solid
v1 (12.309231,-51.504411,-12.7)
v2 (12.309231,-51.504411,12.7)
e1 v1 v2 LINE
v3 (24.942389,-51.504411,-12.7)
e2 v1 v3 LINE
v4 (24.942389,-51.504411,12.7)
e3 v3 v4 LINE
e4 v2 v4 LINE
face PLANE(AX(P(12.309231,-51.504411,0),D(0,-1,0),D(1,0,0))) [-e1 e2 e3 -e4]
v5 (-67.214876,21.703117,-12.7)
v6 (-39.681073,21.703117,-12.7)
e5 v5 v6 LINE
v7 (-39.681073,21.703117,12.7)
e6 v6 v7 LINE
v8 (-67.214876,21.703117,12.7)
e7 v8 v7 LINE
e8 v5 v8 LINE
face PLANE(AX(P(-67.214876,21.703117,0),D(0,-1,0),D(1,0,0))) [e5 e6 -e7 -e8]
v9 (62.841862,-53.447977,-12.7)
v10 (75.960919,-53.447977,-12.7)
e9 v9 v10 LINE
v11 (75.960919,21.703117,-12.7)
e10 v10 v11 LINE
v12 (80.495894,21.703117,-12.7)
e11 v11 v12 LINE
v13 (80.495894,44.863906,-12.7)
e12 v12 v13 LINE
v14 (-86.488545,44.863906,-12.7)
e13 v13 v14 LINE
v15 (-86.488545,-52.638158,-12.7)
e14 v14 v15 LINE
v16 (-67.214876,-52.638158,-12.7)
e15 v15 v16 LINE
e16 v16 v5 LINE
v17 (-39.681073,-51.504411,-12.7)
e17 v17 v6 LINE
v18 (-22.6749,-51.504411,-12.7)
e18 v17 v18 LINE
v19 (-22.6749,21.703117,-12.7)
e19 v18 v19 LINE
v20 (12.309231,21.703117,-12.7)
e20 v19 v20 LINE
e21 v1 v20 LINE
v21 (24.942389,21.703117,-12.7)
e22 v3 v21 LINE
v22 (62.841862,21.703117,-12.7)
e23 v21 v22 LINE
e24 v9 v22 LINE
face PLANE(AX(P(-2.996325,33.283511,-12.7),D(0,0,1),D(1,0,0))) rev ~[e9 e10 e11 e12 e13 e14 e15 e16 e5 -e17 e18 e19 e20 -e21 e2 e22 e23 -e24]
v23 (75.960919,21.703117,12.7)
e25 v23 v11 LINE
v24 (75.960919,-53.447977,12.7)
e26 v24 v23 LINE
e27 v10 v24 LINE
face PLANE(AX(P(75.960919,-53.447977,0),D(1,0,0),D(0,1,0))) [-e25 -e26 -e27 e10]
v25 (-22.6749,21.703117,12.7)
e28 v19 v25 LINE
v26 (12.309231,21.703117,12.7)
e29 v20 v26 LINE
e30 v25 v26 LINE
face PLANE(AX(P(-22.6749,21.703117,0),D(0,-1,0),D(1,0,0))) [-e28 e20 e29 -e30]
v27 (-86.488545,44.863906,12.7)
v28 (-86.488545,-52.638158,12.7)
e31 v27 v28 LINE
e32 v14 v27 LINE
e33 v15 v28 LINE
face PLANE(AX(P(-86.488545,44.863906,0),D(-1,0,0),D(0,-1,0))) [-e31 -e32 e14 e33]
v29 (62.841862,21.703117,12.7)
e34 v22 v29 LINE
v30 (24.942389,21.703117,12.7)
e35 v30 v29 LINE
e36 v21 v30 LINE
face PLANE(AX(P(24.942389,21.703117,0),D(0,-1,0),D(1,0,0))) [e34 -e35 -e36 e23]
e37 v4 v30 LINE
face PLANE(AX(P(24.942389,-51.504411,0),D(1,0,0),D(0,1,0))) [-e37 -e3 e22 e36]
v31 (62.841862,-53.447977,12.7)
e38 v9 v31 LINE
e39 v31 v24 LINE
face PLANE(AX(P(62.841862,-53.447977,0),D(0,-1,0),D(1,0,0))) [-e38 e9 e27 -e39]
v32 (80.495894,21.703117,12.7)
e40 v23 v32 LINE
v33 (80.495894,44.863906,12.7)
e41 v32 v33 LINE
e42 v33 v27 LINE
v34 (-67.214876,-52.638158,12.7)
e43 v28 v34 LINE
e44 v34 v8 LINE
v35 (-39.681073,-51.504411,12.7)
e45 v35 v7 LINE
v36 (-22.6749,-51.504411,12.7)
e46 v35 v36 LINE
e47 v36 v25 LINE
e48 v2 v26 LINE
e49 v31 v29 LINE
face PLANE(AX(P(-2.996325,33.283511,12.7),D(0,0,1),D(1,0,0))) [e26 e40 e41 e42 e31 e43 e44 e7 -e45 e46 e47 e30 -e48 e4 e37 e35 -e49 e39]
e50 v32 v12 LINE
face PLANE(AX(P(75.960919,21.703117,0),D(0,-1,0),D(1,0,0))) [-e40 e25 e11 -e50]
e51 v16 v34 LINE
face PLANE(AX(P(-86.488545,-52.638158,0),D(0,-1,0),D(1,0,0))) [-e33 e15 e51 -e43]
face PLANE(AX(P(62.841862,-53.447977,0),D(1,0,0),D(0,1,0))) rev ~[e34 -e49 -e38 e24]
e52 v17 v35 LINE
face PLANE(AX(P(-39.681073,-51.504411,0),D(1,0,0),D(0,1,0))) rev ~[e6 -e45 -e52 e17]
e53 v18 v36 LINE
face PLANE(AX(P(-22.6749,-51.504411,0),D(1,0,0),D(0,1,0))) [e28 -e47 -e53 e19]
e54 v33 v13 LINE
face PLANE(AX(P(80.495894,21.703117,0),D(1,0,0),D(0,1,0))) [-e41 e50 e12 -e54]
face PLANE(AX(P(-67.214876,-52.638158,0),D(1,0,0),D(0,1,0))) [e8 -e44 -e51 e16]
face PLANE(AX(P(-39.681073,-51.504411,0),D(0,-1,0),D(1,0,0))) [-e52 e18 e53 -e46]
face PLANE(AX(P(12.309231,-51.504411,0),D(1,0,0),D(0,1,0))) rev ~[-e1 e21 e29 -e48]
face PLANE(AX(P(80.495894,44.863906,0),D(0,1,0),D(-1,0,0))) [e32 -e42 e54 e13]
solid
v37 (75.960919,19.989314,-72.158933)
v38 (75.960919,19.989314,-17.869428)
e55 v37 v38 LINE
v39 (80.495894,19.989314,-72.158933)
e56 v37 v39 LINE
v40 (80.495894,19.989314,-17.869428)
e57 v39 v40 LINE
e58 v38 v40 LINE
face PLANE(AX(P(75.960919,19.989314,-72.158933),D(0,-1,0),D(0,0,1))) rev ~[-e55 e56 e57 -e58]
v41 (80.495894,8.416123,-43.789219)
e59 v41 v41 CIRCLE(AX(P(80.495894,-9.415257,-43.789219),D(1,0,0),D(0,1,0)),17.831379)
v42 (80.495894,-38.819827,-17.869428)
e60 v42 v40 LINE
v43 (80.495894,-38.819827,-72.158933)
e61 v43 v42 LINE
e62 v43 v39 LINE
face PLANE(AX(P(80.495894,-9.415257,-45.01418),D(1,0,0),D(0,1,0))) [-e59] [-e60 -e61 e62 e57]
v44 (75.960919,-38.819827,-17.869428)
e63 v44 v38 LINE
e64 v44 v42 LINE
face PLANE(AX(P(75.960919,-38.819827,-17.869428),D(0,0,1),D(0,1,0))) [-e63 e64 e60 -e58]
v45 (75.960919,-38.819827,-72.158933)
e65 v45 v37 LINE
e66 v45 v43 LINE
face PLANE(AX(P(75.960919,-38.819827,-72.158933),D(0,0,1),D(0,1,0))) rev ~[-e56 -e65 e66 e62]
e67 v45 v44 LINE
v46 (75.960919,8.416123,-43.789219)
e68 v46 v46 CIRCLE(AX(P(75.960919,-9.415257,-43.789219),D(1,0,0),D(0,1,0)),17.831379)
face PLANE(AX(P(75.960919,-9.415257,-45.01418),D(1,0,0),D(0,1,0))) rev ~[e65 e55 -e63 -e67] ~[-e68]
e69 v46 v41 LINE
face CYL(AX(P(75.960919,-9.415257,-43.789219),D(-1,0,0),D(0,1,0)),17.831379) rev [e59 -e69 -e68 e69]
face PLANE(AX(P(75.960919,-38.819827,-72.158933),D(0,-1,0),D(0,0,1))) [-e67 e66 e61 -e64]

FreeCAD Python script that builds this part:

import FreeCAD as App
import Part
import Sketcher
from FreeCAD import Vector
Q = App.Units.Quantity

doc = App.newDocument("Part")
body = doc.addObject("PartDesign::Body", "Body")

# Sketch on XY plane
sketch1 = doc.addObject("Sketcher::SketchObject", "Sketch")
body.addObject(sketch1)
sketch1.AttachmentSupport = (doc.XY_Plane, [""])
sketch1.MapMode = "FlatFace"
sketch1.addGeometry(Part.LineSegment(Vector(80.5, 44.9, 0), Vector(-86.5, 44.9, 0)), False)
sketch1.addGeometry(Part.LineSegment(Vector(-86.5, 44.9, 0), Vector(-86.5, -52.6, 0)), False)
sketch1.addGeometry(Part.LineSegment(Vector(-86.5, -52.6, 0), Vector(-67.2, -52.6, 0)), False)
sketch1.addGeometry(Part.LineSegment(Vector(-67.2, -52.6, 0), Vector(-67.2, 21.7, 0)), False)
sketch1.addGeometry(Part.LineSegment(Vector(-67.2, 21.7, 0), Vector(-39.7, 21.7, 0)), False)
sketch1.addGeometry(Part.LineSegment(Vector(-39.7, 21.7, 0), Vector(-39.7, -51.5, 0)), False)
sketch1.addGeometry(Part.LineSegment(Vector(-39.7, -51.5, 0), Vector(-22.7, -51.5, 0)), False)
sketch1.addGeometry(Part.LineSegment(Vector(-22.7, -51.5, 0), Vector(-22.7, 21.7, 0)), False)
sketch1.addGeometry(Part.LineSegment(Vector(-22.7, 21.7, 0), Vector(12.3, 21.7, 0)), False)
sketch1.addGeometry(Part.LineSegment(Vector(12.3, 21.7, 0), Vector(12.3, -51.5, 0)), False)
sketch1.addGeometry(Part.LineSegment(Vector(12.3, -51.5, 0), Vector(24.9, -51.5, 0)), False)
sketch1.addGeometry(Part.LineSegment(Vector(24.9, -51.5, 0), Vector(24.9, 21.7, 0)), False)
sketch1.addGeometry(Part.LineSegment(Vector(24.9, 21.7, 0), Vector(62.8, 21.7, 0)), False)
sketch1.addGeometry(Part.LineSegment(Vector(62.8, 21.7, 0), Vector(62.8, -53.4, 0)), False)
sketch1.addGeometry(Part.LineSegment(Vector(62.8, -53.4, 0), Vector(76, -53.4, 0)), False)
sketch1.addGeometry(Part.LineSegment(Vector(76, -53.4, 0), Vector(76, 21.7, 0)), False)
sketch1.addGeometry(Part.LineSegment(Vector(76, 21.7, 0), Vector(80.5, 21.7, 0)), False)
sketch1.addGeometry(Part.LineSegment(Vector(80.5, 21.7, 0), Vector(80.5, 44.9, 0)), False)
sketch1.addConstraint(Sketcher.Constraint("Coincident", 0, 2, 1, 1))
sketch1.addConstraint(Sketcher.Constraint("Coincident", 1, 2, 2, 1))
sketch1.addConstraint(Sketcher.Constraint("Coincident", 2, 2, 3, 1))
sketch1.addConstraint(Sketcher.Constraint("Coincident", 3, 2, 4, 1))
sketch1.addConstraint(Sketcher.Constraint("Coincident", 4, 2, 5, 1))
sketch1.addConstraint(Sketcher.Constraint("Coincident", 5, 2, 6, 1))
sketch1.addConstraint(Sketcher.Constraint("Coincident", 6, 2, 7, 1))
sketch1.addConstraint(Sketcher.Constraint("Coincident", 7, 2, 8, 1))
sketch1.addConstraint(Sketcher.Constraint("Coincident", 8, 2, 9, 1))
sketch1.addConstraint(Sketcher.Constraint("Coincident", 9, 2, 10, 1))
sketch1.addConstraint(Sketcher.Constraint("Coincident", 10, 2, 11, 1))
sketch1.addConstraint(Sketcher.Constraint("Coincident", 11, 2, 12, 1))
sketch1.addConstraint(Sketcher.Constraint("Coincident", 12, 2, 13, 1))
sketch1.addConstraint(Sketcher.Constraint("Coincident", 13, 2, 14, 1))
sketch1.addConstraint(Sketcher.Constraint("Coincident", 14, 2, 15, 1))
sketch1.addConstraint(Sketcher.Constraint("Coincident", 15, 2, 16, 1))
sketch1.addConstraint(Sketcher.Constraint("Coincident", 16, 2, 17, 1))
sketch1.addConstraint(Sketcher.Constraint("Coincident", 17, 2, 0, 1))
sketch1.addConstraint(Sketcher.Constraint("Horizontal", 0))
sketch1.addConstraint(Sketcher.Constraint("Vertical", 1))
sketch1.addConstraint(Sketcher.Constraint("Horizontal", 2))
sketch1.addConstraint(Sketcher.Constraint("Vertical", 3))
sketch1.addConstraint(Sketcher.Constraint("Horizontal", 4))
sketch1.addConstraint(Sketcher.Constraint("Vertical", 5))
sketch1.addConstraint(Sketcher.Constraint("Horizontal", 6))
sketch1.addConstraint(Sketcher.Constraint("Vertical", 7))
sketch1.addConstraint(Sketcher.Constraint("Horizontal", 8))
sketch1.addConstraint(Sketcher.Constraint("Vertical", 9))
sketch1.addConstraint(Sketcher.Constraint("Horizontal", 10))
sketch1.addConstraint(Sketcher.Constraint("Vertical", 11))
sketch1.addConstraint(Sketcher.Constraint("Horizontal", 12))
sketch1.addConstraint(Sketcher.Constraint("Vertical", 13))
sketch1.addConstraint(Sketcher.Constraint("Horizontal", 14))
sketch1.addConstraint(Sketcher.Constraint("Vertical", 15))
sketch1.addConstraint(Sketcher.Constraint("Horizontal", 16))
sketch1.addConstraint(Sketcher.Constraint("Vertical", 17))
sketch1.addConstraint(Sketcher.Constraint("Horizontal", 4, 2, 7, 2))
sketch1.addConstraint(Sketcher.Constraint("Horizontal", 6, 2, 9, 2))
sketch1.addConstraint(Sketcher.Constraint("Horizontal", 8, 2, 11, 2))
sketch1.addConstraint(Sketcher.Constraint("Horizontal", 12, 2, 15, 2))
sketch1.addConstraint(Sketcher.Constraint("DistanceX", 0, 2, 0, 1, Q("166.984439 mm")))
sketch1.addConstraint(Sketcher.Constraint("DistanceX", 2, 1, 2, 2, Q("19.273669 mm")))
sketch1.addConstraint(Sketcher.Constraint("DistanceX", 8, 1, 8, 2, Q("34.98413 mm")))
sketch1.addConstraint(Sketcher.Constraint("DistanceY", 17, 1, 17, 2, Q("23.160789 mm")))
sketch1.addConstraint(Sketcher.Constraint("DistanceX", 6, 2, -1, 1, Q("22.6749 mm")))
sketch1.addConstraint(Sketcher.Constraint("DistanceX", 4, 1, 4, 2, Q("27.533803 mm")))
sketch1.addConstraint(Sketcher.Constraint("DistanceX", 6, 1, 6, 2, Q("17.006174 mm")))
sketch1.addConstraint(Sketcher.Constraint("DistanceX", 10, 1, 10, 2, Q("12.633158 mm")))
sketch1.addConstraint(Sketcher.Constraint("DistanceX", 12, 1, 12, 2, Q("37.899474 mm")))
sketch1.addConstraint(Sketcher.Constraint("DistanceX", 14, 1, 14, 2, Q("13.119057 mm")))
sketch1.addConstraint(Sketcher.Constraint("DistanceY", 1, 2, 1, 1, Q("97.502064 mm")))
sketch1.addConstraint(Sketcher.Constraint("DistanceY", 5, 2, 5, 1, Q("73.207527 mm")))
sketch1.addConstraint(Sketcher.Constraint("DistanceY", 13, 2, 13, 1, Q("75.151093 mm")))
sketch1.addConstraint(Sketcher.Constraint("DistanceY", 1, 2, -1, 1, Q("52.638158 mm")))
pad1 = doc.addObject("PartDesign::Pad", "Pad")
body.addObject(pad1)
pad1.Profile = sketch1
pad1.Length = Q("1 in")
pad1.Midplane = True
body2 = doc.addObject("PartDesign::Body", "Body001")

# Sketch on YZ plane
sketch2 = doc.addObject("Sketcher::SketchObject", "Sketch001")
body2.addObject(sketch2)
sketch2.AttachmentSupport = (doc.getObject("YZ_Plane001"), [""])
sketch2.MapMode = "FlatFace"
sketch2.AttachmentOffset = App.Placement(Vector(0, 0, 75.960919), App.Rotation())
sketch2.addGeometry(Part.LineSegment(Vector(-39, -18, 0), Vector(-39, -72, 0)), False)
sketch2.addGeometry(Part.LineSegment(Vector(-39, -72, 0), Vector(20, -72, 0)), False)
sketch2.addGeometry(Part.LineSegment(Vector(20, -72, 0), Vector(20, -18, 0)), False)
sketch2.addGeometry(Part.LineSegment(Vector(20, -18, 0), Vector(-39, -18, 0)), False)
sketch2.addGeometry(Part.Circle(Vector(-9, -44, 0), Vector(0, 0, 1), 18), False)
sketch2.addConstraint(Sketcher.Constraint("Coincident", 0, 2, 1, 1))
sketch2.addConstraint(Sketcher.Constraint("Coincident", 1, 2, 2, 1))
sketch2.addConstraint(Sketcher.Constraint("Coincident", 2, 2, 3, 1))
sketch2.addConstraint(Sketcher.Constraint("Coincident", 3, 2, 0, 1))
sketch2.addConstraint(Sketcher.Constraint("Vertical", 0))
sketch2.addConstraint(Sketcher.Constraint("Horizontal", 1))
sketch2.addConstraint(Sketcher.Constraint("Vertical", 2))
sketch2.addConstraint(Sketcher.Constraint("Horizontal", 3))
sketch2.addConstraint(Sketcher.Constraint("Diameter", 4, Q("35.662759 mm")))
sketch2.addConstraint(Sketcher.Constraint("DistanceX", 1, 1, 1, 2, Q("58.809141 mm")))
sketch2.addConstraint(Sketcher.Constraint("DistanceY", 0, 2, 0, 1, Q("54.289505 mm")))
sketch2.addConstraint(Sketcher.Constraint("DistanceY", 4, 3, -1, 1, Q("43.789219 mm")))
sketch2.addConstraint(Sketcher.Constraint("DistanceX", 0, 2, 4, 3, Q("29.40457 mm")))
sketch2.addConstraint(Sketcher.Constraint("DistanceY", 4, 3, 2, 2, Q("25.919791 mm")))
sketch2.addConstraint(Sketcher.Constraint("DistanceX", 4, 3, -1, 1, Q("9.415257 mm")))
pad2 = doc.addObject("PartDesign::Pad", "Pad001")
body2.addObject(pad2)
pad2.Profile = sketch2
pad2.Length = 4.534975

doc.recompute()
